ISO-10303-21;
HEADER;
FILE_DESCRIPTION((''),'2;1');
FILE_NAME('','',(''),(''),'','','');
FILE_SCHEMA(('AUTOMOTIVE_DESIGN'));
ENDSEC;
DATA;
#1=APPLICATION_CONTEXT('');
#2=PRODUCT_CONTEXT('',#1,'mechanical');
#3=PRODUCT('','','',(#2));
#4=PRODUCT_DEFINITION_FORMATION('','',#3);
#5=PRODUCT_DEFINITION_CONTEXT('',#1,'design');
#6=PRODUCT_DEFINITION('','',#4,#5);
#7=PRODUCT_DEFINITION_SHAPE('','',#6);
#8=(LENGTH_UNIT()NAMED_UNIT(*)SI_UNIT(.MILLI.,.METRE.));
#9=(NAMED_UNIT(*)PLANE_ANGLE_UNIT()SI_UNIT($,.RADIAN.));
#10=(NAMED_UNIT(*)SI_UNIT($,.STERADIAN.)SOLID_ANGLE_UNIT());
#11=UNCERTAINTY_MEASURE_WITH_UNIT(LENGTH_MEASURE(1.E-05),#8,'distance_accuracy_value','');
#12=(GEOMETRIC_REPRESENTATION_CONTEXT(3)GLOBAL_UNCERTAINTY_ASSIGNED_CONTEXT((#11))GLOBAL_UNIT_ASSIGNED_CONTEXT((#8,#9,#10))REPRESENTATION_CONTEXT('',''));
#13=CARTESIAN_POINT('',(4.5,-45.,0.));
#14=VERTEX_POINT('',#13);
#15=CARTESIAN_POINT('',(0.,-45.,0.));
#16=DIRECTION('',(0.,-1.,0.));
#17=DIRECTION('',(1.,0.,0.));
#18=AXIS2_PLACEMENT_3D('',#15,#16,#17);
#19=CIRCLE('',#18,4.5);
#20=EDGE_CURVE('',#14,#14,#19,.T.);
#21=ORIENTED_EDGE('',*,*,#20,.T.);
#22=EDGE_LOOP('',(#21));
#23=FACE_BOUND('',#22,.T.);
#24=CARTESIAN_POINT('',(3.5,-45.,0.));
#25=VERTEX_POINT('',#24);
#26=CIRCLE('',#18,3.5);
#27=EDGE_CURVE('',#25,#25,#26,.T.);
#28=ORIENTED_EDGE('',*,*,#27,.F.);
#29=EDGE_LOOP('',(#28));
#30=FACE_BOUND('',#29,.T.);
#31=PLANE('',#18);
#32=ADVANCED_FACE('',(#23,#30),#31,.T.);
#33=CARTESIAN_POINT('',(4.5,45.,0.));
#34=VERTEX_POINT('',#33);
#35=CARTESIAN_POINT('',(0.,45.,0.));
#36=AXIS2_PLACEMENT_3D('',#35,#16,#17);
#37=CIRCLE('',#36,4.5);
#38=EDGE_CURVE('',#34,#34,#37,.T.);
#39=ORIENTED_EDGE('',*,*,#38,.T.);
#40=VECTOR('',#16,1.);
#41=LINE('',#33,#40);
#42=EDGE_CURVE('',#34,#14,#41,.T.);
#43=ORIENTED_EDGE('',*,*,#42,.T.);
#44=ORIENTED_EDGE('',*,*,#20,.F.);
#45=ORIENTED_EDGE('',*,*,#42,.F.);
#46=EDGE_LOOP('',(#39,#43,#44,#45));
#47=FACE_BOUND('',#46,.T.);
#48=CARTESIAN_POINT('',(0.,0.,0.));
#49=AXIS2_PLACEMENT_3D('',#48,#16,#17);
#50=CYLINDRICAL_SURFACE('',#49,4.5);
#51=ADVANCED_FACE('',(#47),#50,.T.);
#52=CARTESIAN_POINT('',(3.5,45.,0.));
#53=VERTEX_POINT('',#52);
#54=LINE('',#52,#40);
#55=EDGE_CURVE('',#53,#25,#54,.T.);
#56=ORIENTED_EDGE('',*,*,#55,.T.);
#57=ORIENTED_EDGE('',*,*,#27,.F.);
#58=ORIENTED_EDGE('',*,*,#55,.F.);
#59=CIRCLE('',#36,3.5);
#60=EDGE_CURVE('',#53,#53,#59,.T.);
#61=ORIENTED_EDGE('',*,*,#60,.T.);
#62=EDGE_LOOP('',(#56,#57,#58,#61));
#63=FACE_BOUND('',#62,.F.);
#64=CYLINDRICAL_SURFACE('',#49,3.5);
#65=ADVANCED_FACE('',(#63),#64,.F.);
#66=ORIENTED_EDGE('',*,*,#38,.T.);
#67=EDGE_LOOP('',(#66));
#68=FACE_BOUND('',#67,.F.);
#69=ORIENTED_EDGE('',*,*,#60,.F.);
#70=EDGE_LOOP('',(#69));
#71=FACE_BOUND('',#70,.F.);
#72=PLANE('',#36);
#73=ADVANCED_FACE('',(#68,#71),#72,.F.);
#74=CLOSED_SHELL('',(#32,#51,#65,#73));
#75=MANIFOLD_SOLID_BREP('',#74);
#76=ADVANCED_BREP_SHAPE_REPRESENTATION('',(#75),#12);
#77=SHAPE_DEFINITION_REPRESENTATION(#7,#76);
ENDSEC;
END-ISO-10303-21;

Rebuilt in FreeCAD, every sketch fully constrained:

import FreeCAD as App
import Part
import Sketcher

V = App.Vector
Q = App.Units.Quantity


def faces_at(feature, points):
    """Names of the faces that lie closest to the given points."""
    faces = feature.Shape.Faces
    near = lambda p: min(range(len(faces)), key=lambda i: faces[i].distToShape(Part.Vertex(*p))[0])
    return sorted({f"Face{near(p) + 1}" for p in points})

doc = App.newDocument("Part")
body = doc.addObject("PartDesign::Body", "Body")

# Sketch on XZ plane
sketch1 = body.newObject("Sketcher::SketchObject", "Sketch")
sketch1.AttachmentSupport = (doc.getObject("XZ_Plane"), [""])
sketch1.MapMode = "FlatFace"
sketch1.addGeometry(Part.Circle(V(0, 0, 0), V(0, 0, 1), 4.5), False)
sketch1.addConstraint([
    Sketcher.Constraint("Coincident", 0, 3, -1, 1),
    Sketcher.Constraint("Diameter", 0, Q("9 mm")),
])
pad1 = body.newObject("PartDesign::Pad", "Pad")
pad1.Profile = sketch1
pad1.Length = 90
pad1.Midplane = True
doc.recompute()

thickness = body.newObject("PartDesign::Thickness", "Thickness")
thickness.Base = (pad1, faces_at(pad1, [(0, -45, 0), (0, 45, 0)]))
thickness.Value = 1
thickness.Reversed = True
thickness.Join = "Arc"

doc.recompute()
